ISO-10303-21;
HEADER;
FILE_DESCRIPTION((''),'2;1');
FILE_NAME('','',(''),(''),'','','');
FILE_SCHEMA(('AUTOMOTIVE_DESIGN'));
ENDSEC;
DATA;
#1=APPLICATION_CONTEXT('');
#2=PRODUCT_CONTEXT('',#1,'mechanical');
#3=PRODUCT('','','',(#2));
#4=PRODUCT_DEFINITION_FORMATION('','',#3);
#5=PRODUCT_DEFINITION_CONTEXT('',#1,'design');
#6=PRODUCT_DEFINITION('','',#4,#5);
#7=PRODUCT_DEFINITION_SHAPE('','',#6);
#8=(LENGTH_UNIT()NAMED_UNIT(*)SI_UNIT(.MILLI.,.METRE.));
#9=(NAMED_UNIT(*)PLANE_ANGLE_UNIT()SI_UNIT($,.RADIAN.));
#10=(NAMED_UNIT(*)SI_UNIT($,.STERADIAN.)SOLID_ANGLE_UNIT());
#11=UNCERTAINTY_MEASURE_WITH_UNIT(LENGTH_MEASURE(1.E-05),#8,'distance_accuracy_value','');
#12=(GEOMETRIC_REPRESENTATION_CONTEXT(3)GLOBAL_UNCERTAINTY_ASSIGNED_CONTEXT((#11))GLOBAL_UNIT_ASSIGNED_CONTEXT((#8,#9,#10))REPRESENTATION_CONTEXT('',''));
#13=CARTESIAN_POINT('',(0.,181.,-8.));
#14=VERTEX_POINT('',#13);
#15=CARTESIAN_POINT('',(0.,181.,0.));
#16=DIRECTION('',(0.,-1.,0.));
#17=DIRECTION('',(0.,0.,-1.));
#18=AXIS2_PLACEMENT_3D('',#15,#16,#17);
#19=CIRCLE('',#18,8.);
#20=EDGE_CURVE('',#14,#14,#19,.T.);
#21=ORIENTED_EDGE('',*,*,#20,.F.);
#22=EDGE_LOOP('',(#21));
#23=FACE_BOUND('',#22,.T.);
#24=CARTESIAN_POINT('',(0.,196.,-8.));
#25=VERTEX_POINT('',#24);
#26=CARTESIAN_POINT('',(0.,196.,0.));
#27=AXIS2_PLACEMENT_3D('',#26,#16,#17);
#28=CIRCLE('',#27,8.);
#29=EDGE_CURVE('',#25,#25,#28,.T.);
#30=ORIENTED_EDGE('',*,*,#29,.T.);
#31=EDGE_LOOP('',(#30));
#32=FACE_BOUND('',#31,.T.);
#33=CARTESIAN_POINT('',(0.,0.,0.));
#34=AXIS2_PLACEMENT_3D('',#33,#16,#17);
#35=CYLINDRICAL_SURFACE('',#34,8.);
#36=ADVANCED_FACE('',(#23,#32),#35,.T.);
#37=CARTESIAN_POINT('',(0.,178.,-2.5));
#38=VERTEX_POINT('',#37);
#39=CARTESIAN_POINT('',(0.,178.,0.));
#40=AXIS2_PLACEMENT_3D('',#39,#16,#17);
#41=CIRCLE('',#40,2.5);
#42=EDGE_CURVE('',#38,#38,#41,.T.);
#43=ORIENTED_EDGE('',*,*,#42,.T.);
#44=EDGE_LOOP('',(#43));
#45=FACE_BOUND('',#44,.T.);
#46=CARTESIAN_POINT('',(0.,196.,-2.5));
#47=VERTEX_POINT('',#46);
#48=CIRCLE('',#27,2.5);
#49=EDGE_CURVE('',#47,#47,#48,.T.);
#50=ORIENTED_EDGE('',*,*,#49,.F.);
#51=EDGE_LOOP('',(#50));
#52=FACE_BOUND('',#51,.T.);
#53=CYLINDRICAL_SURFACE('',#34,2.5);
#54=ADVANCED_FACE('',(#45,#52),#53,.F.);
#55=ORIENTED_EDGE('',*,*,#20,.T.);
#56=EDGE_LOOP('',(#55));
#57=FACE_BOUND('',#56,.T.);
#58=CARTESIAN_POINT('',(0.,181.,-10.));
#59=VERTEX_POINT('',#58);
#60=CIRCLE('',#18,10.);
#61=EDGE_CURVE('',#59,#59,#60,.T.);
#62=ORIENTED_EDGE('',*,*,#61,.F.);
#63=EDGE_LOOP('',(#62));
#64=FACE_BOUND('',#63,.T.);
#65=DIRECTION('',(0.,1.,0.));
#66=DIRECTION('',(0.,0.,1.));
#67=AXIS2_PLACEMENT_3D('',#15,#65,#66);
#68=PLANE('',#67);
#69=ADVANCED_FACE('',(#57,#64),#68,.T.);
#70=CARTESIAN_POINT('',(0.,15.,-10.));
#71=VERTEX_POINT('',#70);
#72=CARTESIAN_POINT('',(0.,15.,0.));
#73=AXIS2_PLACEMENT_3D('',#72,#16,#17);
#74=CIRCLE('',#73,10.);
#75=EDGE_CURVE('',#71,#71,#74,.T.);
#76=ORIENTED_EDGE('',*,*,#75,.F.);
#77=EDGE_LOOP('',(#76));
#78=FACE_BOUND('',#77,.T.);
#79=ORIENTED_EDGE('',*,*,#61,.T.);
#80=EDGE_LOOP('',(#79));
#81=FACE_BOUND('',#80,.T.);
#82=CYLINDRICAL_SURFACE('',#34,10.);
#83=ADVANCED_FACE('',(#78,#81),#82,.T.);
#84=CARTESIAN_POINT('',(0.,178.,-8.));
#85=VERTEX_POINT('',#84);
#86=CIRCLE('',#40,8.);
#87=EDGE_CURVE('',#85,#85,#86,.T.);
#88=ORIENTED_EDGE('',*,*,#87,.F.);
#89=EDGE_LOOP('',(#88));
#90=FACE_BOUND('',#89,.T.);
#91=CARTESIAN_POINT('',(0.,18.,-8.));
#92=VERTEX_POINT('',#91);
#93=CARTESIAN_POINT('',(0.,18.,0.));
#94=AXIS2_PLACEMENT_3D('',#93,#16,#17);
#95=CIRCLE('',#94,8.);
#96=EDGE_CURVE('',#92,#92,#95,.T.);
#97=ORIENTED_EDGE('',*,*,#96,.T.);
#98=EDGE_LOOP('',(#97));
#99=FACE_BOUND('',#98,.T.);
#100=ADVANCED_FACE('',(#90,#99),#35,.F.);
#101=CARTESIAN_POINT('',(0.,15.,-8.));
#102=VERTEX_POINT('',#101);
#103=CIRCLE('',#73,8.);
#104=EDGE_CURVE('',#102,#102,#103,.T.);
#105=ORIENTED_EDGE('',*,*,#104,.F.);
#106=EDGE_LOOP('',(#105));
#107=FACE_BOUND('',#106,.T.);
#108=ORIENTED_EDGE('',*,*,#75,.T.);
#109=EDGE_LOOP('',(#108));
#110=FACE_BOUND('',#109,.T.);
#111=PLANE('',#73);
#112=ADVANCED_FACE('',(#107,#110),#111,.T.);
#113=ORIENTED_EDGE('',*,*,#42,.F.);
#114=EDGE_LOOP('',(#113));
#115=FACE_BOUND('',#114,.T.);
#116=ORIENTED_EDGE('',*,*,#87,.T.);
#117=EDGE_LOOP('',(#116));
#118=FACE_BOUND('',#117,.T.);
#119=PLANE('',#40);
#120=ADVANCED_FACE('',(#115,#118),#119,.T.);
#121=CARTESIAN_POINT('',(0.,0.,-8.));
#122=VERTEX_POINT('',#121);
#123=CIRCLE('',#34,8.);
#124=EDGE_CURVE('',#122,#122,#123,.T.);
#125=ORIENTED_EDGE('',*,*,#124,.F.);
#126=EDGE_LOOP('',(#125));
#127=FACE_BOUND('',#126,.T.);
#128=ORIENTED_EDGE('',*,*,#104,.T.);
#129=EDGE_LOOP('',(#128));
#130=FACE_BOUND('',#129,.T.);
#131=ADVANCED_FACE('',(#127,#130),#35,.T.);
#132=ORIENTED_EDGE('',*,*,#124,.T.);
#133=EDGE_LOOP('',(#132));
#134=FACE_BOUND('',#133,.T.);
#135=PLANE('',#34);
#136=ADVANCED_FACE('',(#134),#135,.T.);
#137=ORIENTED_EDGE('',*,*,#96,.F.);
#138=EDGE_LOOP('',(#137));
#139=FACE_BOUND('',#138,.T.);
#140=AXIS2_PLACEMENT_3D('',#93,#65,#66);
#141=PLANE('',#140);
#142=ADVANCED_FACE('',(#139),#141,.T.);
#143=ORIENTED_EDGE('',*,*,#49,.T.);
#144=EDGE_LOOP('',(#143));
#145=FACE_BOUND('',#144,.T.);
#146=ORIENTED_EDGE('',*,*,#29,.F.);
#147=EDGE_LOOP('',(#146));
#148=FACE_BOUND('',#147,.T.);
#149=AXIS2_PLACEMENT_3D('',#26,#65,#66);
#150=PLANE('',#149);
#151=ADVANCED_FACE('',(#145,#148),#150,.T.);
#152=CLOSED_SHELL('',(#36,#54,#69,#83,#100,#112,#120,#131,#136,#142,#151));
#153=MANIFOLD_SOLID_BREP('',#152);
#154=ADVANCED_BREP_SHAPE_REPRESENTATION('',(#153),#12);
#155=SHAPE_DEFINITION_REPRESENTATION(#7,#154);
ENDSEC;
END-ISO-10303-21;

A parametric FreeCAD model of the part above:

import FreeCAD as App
import Part
import Sketcher

V = App.Vector
Q = App.Units.Quantity

doc = App.newDocument("Part")
body = doc.addObject("PartDesign::Body", "Body")

sketch1 = body.newObject("Sketcher::SketchObject", "Sketch")
sketch1.AttachmentSupport = (doc.getObject("XY_Plane"), [""])
sketch1.MapMode = "FlatFace"
sketch1.addGeometry(Part.LineSegment(V(0, 18, 0), V(0, 0, 0)), False)
sketch1.addGeometry(Part.LineSegment(V(0, 0, 0), V(8, 0, 0)), False)
sketch1.addGeometry(Part.LineSegment(V(8, 0, 0), V(8, 15, 0)), False)
sketch1.addGeometry(Part.LineSegment(V(8, 15, 0), V(10, 15, 0)), False)
sketch1.addGeometry(Part.LineSegment(V(10, 15, 0), V(10, 181, 0)), False)
sketch1.addGeometry(Part.LineSegment(V(10, 181, 0), V(8, 181, 0)), False)
sketch1.addGeometry(Part.LineSegment(V(8, 181, 0), V(8, 196, 0)), False)
sketch1.addGeometry(Part.LineSegment(V(8, 196, 0), V(2.5, 196, 0)), False)
sketch1.addGeometry(Part.LineSegment(V(2.5, 196, 0), V(2.5, 178, 0)), False)
sketch1.addGeometry(Part.LineSegment(V(2.5, 178, 0), V(8, 178, 0)), False)
sketch1.addGeometry(Part.LineSegment(V(8, 178, 0), V(8, 18, 0)), False)
sketch1.addGeometry(Part.LineSegment(V(8, 18, 0), V(0, 18, 0)), False)
sketch1.addConstraint(Sketcher.Constraint("Coincident", 0, 2, 1, 1))
sketch1.addConstraint(Sketcher.Constraint("Coincident", 1, 2, 2, 1))
sketch1.addConstraint(Sketcher.Constraint("Coincident", 2, 2, 3, 1))
sketch1.addConstraint(Sketcher.Constraint("Coincident", 3, 2, 4, 1))
sketch1.addConstraint(Sketcher.Constraint("Coincident", 4, 2, 5, 1))
sketch1.addConstraint(Sketcher.Constraint("Coincident", 5, 2, 6, 1))
sketch1.addConstraint(Sketcher.Constraint("Coincident", 6, 2, 7, 1))
sketch1.addConstraint(Sketcher.Constraint("Coincident", 7, 2, 8, 1))
sketch1.addConstraint(Sketcher.Constraint("Coincident", 8, 2, 9, 1))
sketch1.addConstraint(Sketcher.Constraint("Coincident", 9, 2, 10, 1))
sketch1.addConstraint(Sketcher.Constraint("Coincident", 10, 2, 11, 1))
sketch1.addConstraint(Sketcher.Constraint("Coincident", 11, 2, 0, 1))
sketch1.addConstraint(Sketcher.Constraint("Vertical", 0))
sketch1.addConstraint(Sketcher.Constraint("Horizontal", 1))
sketch1.addConstraint(Sketcher.Constraint("Vertical", 2))
sketch1.addConstraint(Sketcher.Constraint("Horizontal", 3))
sketch1.addConstraint(Sketcher.Constraint("Vertical", 4))
sketch1.addConstraint(Sketcher.Constraint("Horizontal", 5))
sketch1.addConstraint(Sketcher.Constraint("Vertical", 6))
sketch1.addConstraint(Sketcher.Constraint("Horizontal", 7))
sketch1.addConstraint(Sketcher.Constraint("Vertical", 8))
sketch1.addConstraint(Sketcher.Constraint("Horizontal", 9))
sketch1.addConstraint(Sketcher.Constraint("Vertical", 10))
sketch1.addConstraint(Sketcher.Constraint("Horizontal", 11))
sketch1.addConstraint(Sketcher.Constraint("Coincident", 0, 2, -1, 1))
sketch1.addConstraint(Sketcher.Constraint("Vertical", 2, 2, 5, 2))
sketch1.addConstraint(Sketcher.Constraint("Vertical", 6, 2, 9, 2))
sketch1.addConstraint(Sketcher.Constraint("Equal", 2, 6))
sketch1.addConstraint(Sketcher.Constraint("Equal", 0, 8))
sketch1.addConstraint(Sketcher.Constraint("DistanceX", 1, 1, 1, 2, Q("8 mm")))
sketch1.addConstraint(Sketcher.Constraint("DistanceX", 3, 1, 3, 2, Q("2 mm")))
sketch1.addConstraint(Sketcher.Constraint("DistanceY", 0, 2, 0, 1, Q("18 mm")))
sketch1.addConstraint(Sketcher.Constraint("DistanceY", 2, 1, 2, 2, Q("15 mm")))
sketch1.addConstraint(Sketcher.Constraint("DistanceY", 4, 1, 4, 2, Q("166 mm")))
sketch1.addConstraint(Sketcher.Constraint("DistanceX", 7, 2, 7, 1, Q("5.5 mm")))
revolution = body.newObject("PartDesign::Revolution", "Revolution")
revolution.Profile = sketch1
revolution.ReferenceAxis = (sketch1, ["V_Axis"])
revolution.Angle = 360

doc.recompute()
